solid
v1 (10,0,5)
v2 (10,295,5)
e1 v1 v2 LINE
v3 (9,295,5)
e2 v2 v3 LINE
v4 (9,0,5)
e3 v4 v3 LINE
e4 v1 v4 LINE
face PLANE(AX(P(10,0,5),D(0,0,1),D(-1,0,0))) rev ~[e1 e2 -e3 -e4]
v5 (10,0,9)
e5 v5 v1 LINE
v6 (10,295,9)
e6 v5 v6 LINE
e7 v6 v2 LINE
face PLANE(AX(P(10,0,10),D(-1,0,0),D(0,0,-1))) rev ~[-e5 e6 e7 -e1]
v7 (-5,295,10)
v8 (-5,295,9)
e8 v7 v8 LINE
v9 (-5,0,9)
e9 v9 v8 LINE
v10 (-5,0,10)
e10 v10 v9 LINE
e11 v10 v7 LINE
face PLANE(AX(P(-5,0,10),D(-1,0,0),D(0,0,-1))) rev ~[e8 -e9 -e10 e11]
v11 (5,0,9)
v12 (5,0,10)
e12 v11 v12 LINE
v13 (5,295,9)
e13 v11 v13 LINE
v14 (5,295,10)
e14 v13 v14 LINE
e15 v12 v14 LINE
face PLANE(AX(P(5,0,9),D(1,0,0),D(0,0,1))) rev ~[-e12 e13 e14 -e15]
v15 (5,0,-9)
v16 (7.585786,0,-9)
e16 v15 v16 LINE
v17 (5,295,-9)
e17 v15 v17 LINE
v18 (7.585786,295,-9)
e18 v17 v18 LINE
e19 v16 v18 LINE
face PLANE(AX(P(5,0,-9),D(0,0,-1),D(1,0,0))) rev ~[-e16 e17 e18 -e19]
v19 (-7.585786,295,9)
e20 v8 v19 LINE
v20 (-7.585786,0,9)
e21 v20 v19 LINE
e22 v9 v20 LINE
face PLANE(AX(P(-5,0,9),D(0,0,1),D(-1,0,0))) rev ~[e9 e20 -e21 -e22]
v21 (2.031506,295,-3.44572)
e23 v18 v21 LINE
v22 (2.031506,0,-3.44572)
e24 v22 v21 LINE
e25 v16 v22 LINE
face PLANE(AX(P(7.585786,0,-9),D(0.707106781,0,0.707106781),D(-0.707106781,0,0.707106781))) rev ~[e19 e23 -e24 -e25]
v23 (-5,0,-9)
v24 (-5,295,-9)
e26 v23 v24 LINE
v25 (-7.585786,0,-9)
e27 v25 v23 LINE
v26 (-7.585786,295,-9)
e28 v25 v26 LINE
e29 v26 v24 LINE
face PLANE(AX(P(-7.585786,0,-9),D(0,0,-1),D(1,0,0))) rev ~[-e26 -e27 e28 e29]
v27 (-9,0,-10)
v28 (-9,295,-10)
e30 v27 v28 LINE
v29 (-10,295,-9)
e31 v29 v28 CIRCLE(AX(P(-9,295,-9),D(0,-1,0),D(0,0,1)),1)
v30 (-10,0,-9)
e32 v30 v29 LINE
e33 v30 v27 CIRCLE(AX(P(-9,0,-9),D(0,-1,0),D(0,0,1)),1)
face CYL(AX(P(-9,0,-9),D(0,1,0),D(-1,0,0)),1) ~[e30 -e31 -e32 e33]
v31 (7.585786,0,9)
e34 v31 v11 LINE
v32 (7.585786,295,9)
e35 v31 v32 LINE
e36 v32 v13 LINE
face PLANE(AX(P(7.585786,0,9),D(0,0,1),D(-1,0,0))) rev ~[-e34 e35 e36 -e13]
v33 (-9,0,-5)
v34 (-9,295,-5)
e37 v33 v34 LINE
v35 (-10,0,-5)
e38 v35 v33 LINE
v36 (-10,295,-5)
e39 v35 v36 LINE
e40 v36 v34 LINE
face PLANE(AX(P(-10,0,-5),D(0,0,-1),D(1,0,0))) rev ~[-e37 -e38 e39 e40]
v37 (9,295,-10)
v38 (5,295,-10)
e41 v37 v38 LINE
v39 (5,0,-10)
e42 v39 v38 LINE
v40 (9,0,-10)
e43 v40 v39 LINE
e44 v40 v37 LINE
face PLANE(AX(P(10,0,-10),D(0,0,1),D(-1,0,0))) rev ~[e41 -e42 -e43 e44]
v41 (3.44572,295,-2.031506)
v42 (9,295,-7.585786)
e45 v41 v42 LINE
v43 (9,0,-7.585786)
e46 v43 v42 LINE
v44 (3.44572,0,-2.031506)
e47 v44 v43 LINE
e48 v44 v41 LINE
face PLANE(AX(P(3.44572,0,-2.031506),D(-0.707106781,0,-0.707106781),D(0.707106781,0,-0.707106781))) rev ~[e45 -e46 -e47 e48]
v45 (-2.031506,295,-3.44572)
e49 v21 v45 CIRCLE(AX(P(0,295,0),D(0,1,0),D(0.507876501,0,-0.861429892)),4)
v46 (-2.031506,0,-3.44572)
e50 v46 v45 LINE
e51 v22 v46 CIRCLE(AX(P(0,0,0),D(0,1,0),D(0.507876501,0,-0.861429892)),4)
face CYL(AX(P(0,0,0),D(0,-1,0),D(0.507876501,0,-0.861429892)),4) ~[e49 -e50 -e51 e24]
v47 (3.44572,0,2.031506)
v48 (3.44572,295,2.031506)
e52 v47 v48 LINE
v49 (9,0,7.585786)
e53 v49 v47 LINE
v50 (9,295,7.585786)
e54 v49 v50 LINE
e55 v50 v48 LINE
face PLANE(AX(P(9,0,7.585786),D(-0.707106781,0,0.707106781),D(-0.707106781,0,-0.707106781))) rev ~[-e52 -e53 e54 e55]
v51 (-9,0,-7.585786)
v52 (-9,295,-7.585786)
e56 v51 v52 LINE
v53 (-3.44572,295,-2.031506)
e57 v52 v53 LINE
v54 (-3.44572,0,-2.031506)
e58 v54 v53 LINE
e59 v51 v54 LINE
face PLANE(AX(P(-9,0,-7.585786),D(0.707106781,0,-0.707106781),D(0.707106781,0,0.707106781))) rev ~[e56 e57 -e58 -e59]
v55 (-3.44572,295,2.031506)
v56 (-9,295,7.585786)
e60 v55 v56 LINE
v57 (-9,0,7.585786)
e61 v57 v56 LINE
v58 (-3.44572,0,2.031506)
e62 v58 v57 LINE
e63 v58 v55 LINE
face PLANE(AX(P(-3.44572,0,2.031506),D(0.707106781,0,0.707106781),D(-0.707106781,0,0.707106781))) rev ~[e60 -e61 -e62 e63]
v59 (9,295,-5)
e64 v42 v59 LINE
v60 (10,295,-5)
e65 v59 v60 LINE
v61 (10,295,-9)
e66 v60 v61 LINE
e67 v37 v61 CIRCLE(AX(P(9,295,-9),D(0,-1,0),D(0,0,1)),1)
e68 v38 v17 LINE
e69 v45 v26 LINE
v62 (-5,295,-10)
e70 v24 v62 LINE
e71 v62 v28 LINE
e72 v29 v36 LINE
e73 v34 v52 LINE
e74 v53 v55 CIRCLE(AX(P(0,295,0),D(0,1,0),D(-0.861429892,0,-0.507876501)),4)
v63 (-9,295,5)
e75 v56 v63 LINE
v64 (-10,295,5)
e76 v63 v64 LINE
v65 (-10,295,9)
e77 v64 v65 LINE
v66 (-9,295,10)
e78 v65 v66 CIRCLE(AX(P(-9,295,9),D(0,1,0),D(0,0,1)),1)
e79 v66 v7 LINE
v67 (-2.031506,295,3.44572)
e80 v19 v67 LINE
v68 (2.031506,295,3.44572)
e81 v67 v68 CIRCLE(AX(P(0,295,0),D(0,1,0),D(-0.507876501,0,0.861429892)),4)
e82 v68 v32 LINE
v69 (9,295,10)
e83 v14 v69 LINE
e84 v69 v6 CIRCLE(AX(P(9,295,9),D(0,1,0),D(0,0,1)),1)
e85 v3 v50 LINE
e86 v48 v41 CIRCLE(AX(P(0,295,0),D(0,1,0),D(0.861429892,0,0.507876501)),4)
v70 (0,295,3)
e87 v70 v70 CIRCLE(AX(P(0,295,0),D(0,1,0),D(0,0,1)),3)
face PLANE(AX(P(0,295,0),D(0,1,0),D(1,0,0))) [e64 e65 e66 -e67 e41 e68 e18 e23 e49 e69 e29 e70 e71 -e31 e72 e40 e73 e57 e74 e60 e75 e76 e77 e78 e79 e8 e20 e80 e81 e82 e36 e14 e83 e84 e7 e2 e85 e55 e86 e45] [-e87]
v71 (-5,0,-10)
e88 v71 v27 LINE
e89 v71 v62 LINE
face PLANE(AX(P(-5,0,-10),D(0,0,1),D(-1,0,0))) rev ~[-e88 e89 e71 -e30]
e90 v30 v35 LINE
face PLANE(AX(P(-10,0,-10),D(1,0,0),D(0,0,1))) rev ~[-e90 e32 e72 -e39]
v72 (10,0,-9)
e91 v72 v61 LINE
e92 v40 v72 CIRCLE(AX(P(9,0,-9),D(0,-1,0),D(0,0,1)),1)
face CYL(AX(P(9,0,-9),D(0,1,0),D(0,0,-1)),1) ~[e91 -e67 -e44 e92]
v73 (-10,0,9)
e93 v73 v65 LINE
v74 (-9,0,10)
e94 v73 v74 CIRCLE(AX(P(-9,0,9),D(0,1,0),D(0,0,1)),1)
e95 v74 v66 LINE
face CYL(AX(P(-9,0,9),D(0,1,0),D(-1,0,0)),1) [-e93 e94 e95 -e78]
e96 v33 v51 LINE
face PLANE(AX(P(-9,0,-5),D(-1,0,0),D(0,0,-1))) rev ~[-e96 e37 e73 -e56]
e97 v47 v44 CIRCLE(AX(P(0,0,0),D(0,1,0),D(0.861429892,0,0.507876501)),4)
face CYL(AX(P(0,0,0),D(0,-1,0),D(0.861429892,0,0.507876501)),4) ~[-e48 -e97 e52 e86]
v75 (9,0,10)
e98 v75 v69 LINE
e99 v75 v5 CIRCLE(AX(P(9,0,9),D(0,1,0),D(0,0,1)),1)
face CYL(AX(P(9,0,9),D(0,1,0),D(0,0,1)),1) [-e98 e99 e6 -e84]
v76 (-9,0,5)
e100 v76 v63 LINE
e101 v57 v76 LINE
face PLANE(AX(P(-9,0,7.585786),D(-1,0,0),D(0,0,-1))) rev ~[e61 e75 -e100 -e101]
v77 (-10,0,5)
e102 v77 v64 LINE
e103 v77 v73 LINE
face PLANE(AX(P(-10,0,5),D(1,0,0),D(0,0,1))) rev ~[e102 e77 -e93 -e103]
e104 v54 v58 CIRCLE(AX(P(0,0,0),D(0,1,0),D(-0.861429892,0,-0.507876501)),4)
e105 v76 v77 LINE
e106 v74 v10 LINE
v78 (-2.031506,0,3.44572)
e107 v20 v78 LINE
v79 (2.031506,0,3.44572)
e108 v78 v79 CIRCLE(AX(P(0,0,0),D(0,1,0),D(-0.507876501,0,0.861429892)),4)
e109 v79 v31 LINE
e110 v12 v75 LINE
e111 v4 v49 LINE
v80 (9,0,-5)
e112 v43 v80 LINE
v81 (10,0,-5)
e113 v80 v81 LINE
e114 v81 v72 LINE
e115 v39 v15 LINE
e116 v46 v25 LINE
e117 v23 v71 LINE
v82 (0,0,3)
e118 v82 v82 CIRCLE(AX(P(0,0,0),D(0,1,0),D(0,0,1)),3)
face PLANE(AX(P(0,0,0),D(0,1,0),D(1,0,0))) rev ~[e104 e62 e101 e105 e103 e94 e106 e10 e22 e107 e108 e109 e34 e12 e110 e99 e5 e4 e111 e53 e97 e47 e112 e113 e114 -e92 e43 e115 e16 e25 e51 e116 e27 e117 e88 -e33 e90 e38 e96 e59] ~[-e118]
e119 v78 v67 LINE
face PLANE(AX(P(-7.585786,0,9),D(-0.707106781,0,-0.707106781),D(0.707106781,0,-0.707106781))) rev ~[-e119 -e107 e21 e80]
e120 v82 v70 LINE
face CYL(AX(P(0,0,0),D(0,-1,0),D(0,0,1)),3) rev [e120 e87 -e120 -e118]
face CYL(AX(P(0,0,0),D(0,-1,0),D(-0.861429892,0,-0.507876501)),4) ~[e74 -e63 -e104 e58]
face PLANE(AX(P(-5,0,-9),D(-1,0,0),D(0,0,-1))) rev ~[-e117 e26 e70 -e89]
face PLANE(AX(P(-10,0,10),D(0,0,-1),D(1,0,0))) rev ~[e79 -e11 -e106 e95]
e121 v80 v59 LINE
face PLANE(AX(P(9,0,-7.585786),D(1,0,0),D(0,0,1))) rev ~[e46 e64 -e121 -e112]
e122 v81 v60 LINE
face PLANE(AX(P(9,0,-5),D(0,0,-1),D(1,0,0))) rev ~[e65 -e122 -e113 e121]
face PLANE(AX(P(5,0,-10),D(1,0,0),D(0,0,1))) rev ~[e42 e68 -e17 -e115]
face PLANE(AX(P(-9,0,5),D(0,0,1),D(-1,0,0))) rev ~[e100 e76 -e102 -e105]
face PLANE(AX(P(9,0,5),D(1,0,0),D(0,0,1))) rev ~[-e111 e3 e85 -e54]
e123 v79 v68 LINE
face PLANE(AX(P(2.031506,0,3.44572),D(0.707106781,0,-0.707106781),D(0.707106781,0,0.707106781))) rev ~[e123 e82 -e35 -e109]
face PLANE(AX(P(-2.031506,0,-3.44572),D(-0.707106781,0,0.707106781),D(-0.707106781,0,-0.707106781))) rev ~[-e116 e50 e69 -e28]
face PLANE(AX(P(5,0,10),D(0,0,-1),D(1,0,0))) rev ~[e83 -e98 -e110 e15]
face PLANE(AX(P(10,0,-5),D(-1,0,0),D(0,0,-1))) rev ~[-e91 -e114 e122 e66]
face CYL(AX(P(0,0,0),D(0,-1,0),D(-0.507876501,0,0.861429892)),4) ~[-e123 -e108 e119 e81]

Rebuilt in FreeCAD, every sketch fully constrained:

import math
import FreeCAD as App
import Part
import Sketcher
from FreeCAD import Vector
Q = App.Units.Quantity


def edges_at(feature, points):
    """Names of the edges that pass closest to the given points."""
    edges = feature.Shape.Edges
    near = lambda p: min(range(len(edges)), key=lambda i: edges[i].distToShape(Part.Vertex(*p))[0])
    return sorted({f"Edge{near(p) + 1}" for p in points})

doc = App.newDocument("Part")
body = doc.addObject("PartDesign::Body", "Body")

# Sketch on XZ plane
sketch1 = doc.addObject("Sketcher::SketchObject", "Sketch")
body.addObject(sketch1)
sketch1.AttachmentSupport = (doc.XZ_Plane, [""])
sketch1.MapMode = "FlatFace"
sketch1.addGeometry([
    Part.LineSegment(Vector(-9, -7.6, 0), Vector(-3.4, -2, 0)),  # 0
    Part.ArcOfCircle(Part.Circle(Vector(0, 0, 0), Vector(0, 0, 1), 4), math.radians(149), math.radians(211)),  # 1
    Part.LineSegment(Vector(-3.4, 2, 0), Vector(-9, 7.6, 0)),  # 2
    Part.LineSegment(Vector(-9, 7.6, 0), Vector(-9, 5, 0)),  # 3
    Part.LineSegment(Vector(-9, 5, 0), Vector(-10, 5, 0)),  # 4
    Part.LineSegment(Vector(-10, 5, 0), Vector(-10, 10, 0)),  # 5
    Part.LineSegment(Vector(-10, 10, 0), Vector(-5, 10, 0)),  # 6
    Part.LineSegment(Vector(-5, 10, 0), Vector(-5, 9, 0)),  # 7
    Part.LineSegment(Vector(-5, 9, 0), Vector(-7.6, 9, 0)),  # 8
    Part.LineSegment(Vector(-7.6, 9, 0), Vector(-2, 3.4, 0)),  # 9
    Part.ArcOfCircle(Part.Circle(Vector(0, 0, 0), Vector(0, 0, 1), 4), math.radians(59), math.radians(121)),  # 10
    Part.LineSegment(Vector(2, 3.4, 0), Vector(7.6, 9, 0)),  # 11
    Part.LineSegment(Vector(7.6, 9, 0), Vector(5, 9, 0)),  # 12
    Part.LineSegment(Vector(5, 9, 0), Vector(5, 10, 0)),  # 13
    Part.LineSegment(Vector(5, 10, 0), Vector(10, 10, 0)),  # 14
    Part.LineSegment(Vector(10, 10, 0), Vector(10, 5, 0)),  # 15
    Part.LineSegment(Vector(10, 5, 0), Vector(9, 5, 0)),  # 16
    Part.LineSegment(Vector(9, 5, 0), Vector(9, 7.6, 0)),  # 17
    Part.LineSegment(Vector(9, 7.6, 0), Vector(3.4, 2, 0)),  # 18
    Part.ArcOfCircle(Part.Circle(Vector(0, 0, 0), Vector(0, 0, 1), 4), math.radians(-31), math.radians(31)),  # 19
    Part.LineSegment(Vector(3.4, -2, 0), Vector(9, -7.6, 0)),  # 20
    Part.LineSegment(Vector(9, -7.6, 0), Vector(9, -5, 0)),  # 21
    Part.LineSegment(Vector(9, -5, 0), Vector(10, -5, 0)),  # 22
    Part.LineSegment(Vector(10, -5, 0), Vector(10, -10, 0)),  # 23
    Part.LineSegment(Vector(10, -10, 0), Vector(5, -10, 0)),  # 24
    Part.LineSegment(Vector(5, -10, 0), Vector(5, -9, 0)),  # 25
    Part.LineSegment(Vector(5, -9, 0), Vector(7.6, -9, 0)),  # 26
    Part.LineSegment(Vector(7.6, -9, 0), Vector(2, -3.4, 0)),  # 27
    Part.ArcOfCircle(Part.Circle(Vector(0, 0, 0), Vector(0, 0, 1), 4), math.radians(-121), math.radians(-59)),  # 28
    Part.LineSegment(Vector(-2, -3.4, 0), Vector(-7.6, -9, 0)),  # 29
    Part.LineSegment(Vector(-7.6, -9, 0), Vector(-5, -9, 0)),  # 30
    Part.LineSegment(Vector(-5, -9, 0), Vector(-5, -10, 0)),  # 31
    Part.LineSegment(Vector(-5, -10, 0), Vector(-10, -10, 0)),  # 32
    Part.LineSegment(Vector(-10, -10, 0), Vector(-10, -5, 0)),  # 33
    Part.LineSegment(Vector(-10, -5, 0), Vector(-9, -5, 0)),  # 34
    Part.LineSegment(Vector(-9, -5, 0), Vector(-9, -7.6, 0)),  # 35
    Part.Circle(Vector(0, 0, 0), Vector(0, 0, 1), 3),  # 36
], False)
sketch1.addConstraint([
    Sketcher.Constraint("Coincident", 0, 2, 1, 2),
    Sketcher.Constraint("Coincident", 1, 1, 2, 1),
    Sketcher.Constraint("Coincident", 2, 2, 3, 1),
    Sketcher.Constraint("Coincident", 3, 2, 4, 1),
    Sketcher.Constraint("Coincident", 4, 2, 5, 1),
    Sketcher.Constraint("Coincident", 5, 2, 6, 1),
    Sketcher.Constraint("Coincident", 6, 2, 7, 1),
    Sketcher.Constraint("Coincident", 7, 2, 8, 1),
    Sketcher.Constraint("Coincident", 8, 2, 9, 1),
    Sketcher.Constraint("Coincident", 9, 2, 10, 2),
    Sketcher.Constraint("Coincident", 10, 1, 11, 1),
    Sketcher.Constraint("Coincident", 11, 2, 12, 1),
    Sketcher.Constraint("Coincident", 12, 2, 13, 1),
    Sketcher.Constraint("Coincident", 13, 2, 14, 1),
    Sketcher.Constraint("Coincident", 14, 2, 15, 1),
    Sketcher.Constraint("Coincident", 15, 2, 16, 1),
    Sketcher.Constraint("Coincident", 16, 2, 17, 1),
    Sketcher.Constraint("Coincident", 17, 2, 18, 1),
    Sketcher.Constraint("Coincident", 18, 2, 19, 2),
    Sketcher.Constraint("Coincident", 19, 1, 20, 1),
    Sketcher.Constraint("Coincident", 20, 2, 21, 1),
    Sketcher.Constraint("Coincident", 21, 2, 22, 1),
    Sketcher.Constraint("Coincident", 22, 2, 23, 1),
    Sketcher.Constraint("Coincident", 23, 2, 24, 1),
    Sketcher.Constraint("Coincident", 24, 2, 25, 1),
    Sketcher.Constraint("Coincident", 25, 2, 26, 1),
    Sketcher.Constraint("Coincident", 26, 2, 27, 1),
    Sketcher.Constraint("Coincident", 27, 2, 28, 2),
    Sketcher.Constraint("Coincident", 28, 1, 29, 1),
    Sketcher.Constraint("Coincident", 29, 2, 30, 1),
    Sketcher.Constraint("Coincident", 30, 2, 31, 1),
    Sketcher.Constraint("Coincident", 31, 2, 32, 1),
    Sketcher.Constraint("Coincident", 32, 2, 33, 1),
    Sketcher.Constraint("Coincident", 33, 2, 34, 1),
    Sketcher.Constraint("Coincident", 34, 2, 35, 1),
    Sketcher.Constraint("Coincident", 35, 2, 0, 1),
    Sketcher.Constraint("Vertical", 3),
    Sketcher.Constraint("Horizontal", 4),
    Sketcher.Constraint("Vertical", 5),
    Sketcher.Constraint("Horizontal", 6),
    Sketcher.Constraint("Vertical", 7),
    Sketcher.Constraint("Horizontal", 8),
    Sketcher.Constraint("Horizontal", 12),
    Sketcher.Constraint("Vertical", 13),
    Sketcher.Constraint("Horizontal", 14),
    Sketcher.Constraint("Vertical", 15),
    Sketcher.Constraint("Horizontal", 16),
    Sketcher.Constraint("Vertical", 17),
    Sketcher.Constraint("Vertical", 21),
    Sketcher.Constraint("Horizontal", 22),
    Sketcher.Constraint("Vertical", 23),
    Sketcher.Constraint("Horizontal", 24),
    Sketcher.Constraint("Vertical", 25),
    Sketcher.Constraint("Horizontal", 26),
    Sketcher.Constraint("Horizontal", 30),
    Sketcher.Constraint("Vertical", 31),
    Sketcher.Constraint("Horizontal", 32),
    Sketcher.Constraint("Vertical", 33),
    Sketcher.Constraint("Horizontal", 34),
    Sketcher.Constraint("Vertical", 35),
    Sketcher.Constraint("Coincident", 1, 3, -1, 1),
    Sketcher.Constraint("Coincident", 10, 3, -1, 1),
    Sketcher.Constraint("Coincident", 19, 3, -1, 1),
    Sketcher.Constraint("Coincident", 28, 3, -1, 1),
    Sketcher.Constraint("Coincident", 36, 3, -1, 1),
    Sketcher.Constraint("Equal", 1, 10),
    Sketcher.Constraint("Equal", 10, 19),
    Sketcher.Constraint("Equal", 19, 28),
    Sketcher.Constraint("Symmetric", 2, 2, 20, 2, -1, 1),
    Sketcher.Constraint("Symmetric", 4, 2, 22, 2, -1, 1),
    Sketcher.Constraint("Symmetric", 6, 2, 24, 2, -1, 1),
    Sketcher.Constraint("Symmetric", 8, 2, 26, 2, -1, 1),
    Sketcher.Constraint("Symmetric", 11, 2, 29, 2, -1, 1),
    Sketcher.Constraint("Symmetric", 13, 2, 31, 2, -1, 1),
    Sketcher.Constraint("Symmetric", 15, 2, 33, 2, -1, 1),
    Sketcher.Constraint("Symmetric", 17, 2, 35, 2, -1, 1),
    Sketcher.Constraint("Symmetric", 8, 2, 11, 2, -2),
    Sketcher.Constraint("Symmetric", 6, 2, 13, 2, -2),
    Sketcher.Constraint("Symmetric", 4, 2, 15, 2, -2),
    Sketcher.Constraint("Symmetric", 2, 2, 17, 2, -2),
    Sketcher.Constraint("Perpendicular", 0, 2),
    Sketcher.Constraint("Parallel", 2, 9),
    Sketcher.Constraint("Perpendicular", 9, 11),
    Sketcher.Constraint("Parallel", 11, 18),
    Sketcher.Constraint("Perpendicular", 18, 20),
    Sketcher.Constraint("Parallel", 20, 27),
    Sketcher.Constraint("Perpendicular", 27, 29),
    Sketcher.Constraint("Horizontal", 9, 2, 10, 1),
    Sketcher.Constraint("Equal", 30, 3),
    Sketcher.Constraint("Equal", 32, 5),
    Sketcher.Constraint("Equal", 34, 7),
    Sketcher.Constraint("Equal", 2, 9),
    Sketcher.Constraint("Diameter", 36, Q("6 mm")),
    Sketcher.Constraint("Radius", 1, Q("4 mm")),
    Sketcher.Constraint("DistanceX", 4, 2, 4, 1, Q("1 mm")),
    Sketcher.Constraint("DistanceX", 6, 1, 6, 2, Q("5 mm")),
    Sketcher.Constraint("DistanceX", 2, 2, -1, 1, Q("9 mm")),
    Sketcher.Constraint("Distance", 0, Q("7.854939 mm")),
])
pad1 = doc.addObject("PartDesign::Pad", "Pad")
body.addObject(pad1)
pad1.Profile = sketch1
pad1.Length = 295
pad1.Reversed = True
doc.recompute()

fillet = doc.addObject("PartDesign::Fillet", "Fillet")
body.addObject(fillet)
fillet.Base = (pad1, edges_at(pad1, [
    (-10, 147.5, -10),
    (10, 147.5, -10),
    (10, 147.5, 10),
    (-10, 147.5, 10),
]))
fillet.Radius = 1

doc.recompute()
